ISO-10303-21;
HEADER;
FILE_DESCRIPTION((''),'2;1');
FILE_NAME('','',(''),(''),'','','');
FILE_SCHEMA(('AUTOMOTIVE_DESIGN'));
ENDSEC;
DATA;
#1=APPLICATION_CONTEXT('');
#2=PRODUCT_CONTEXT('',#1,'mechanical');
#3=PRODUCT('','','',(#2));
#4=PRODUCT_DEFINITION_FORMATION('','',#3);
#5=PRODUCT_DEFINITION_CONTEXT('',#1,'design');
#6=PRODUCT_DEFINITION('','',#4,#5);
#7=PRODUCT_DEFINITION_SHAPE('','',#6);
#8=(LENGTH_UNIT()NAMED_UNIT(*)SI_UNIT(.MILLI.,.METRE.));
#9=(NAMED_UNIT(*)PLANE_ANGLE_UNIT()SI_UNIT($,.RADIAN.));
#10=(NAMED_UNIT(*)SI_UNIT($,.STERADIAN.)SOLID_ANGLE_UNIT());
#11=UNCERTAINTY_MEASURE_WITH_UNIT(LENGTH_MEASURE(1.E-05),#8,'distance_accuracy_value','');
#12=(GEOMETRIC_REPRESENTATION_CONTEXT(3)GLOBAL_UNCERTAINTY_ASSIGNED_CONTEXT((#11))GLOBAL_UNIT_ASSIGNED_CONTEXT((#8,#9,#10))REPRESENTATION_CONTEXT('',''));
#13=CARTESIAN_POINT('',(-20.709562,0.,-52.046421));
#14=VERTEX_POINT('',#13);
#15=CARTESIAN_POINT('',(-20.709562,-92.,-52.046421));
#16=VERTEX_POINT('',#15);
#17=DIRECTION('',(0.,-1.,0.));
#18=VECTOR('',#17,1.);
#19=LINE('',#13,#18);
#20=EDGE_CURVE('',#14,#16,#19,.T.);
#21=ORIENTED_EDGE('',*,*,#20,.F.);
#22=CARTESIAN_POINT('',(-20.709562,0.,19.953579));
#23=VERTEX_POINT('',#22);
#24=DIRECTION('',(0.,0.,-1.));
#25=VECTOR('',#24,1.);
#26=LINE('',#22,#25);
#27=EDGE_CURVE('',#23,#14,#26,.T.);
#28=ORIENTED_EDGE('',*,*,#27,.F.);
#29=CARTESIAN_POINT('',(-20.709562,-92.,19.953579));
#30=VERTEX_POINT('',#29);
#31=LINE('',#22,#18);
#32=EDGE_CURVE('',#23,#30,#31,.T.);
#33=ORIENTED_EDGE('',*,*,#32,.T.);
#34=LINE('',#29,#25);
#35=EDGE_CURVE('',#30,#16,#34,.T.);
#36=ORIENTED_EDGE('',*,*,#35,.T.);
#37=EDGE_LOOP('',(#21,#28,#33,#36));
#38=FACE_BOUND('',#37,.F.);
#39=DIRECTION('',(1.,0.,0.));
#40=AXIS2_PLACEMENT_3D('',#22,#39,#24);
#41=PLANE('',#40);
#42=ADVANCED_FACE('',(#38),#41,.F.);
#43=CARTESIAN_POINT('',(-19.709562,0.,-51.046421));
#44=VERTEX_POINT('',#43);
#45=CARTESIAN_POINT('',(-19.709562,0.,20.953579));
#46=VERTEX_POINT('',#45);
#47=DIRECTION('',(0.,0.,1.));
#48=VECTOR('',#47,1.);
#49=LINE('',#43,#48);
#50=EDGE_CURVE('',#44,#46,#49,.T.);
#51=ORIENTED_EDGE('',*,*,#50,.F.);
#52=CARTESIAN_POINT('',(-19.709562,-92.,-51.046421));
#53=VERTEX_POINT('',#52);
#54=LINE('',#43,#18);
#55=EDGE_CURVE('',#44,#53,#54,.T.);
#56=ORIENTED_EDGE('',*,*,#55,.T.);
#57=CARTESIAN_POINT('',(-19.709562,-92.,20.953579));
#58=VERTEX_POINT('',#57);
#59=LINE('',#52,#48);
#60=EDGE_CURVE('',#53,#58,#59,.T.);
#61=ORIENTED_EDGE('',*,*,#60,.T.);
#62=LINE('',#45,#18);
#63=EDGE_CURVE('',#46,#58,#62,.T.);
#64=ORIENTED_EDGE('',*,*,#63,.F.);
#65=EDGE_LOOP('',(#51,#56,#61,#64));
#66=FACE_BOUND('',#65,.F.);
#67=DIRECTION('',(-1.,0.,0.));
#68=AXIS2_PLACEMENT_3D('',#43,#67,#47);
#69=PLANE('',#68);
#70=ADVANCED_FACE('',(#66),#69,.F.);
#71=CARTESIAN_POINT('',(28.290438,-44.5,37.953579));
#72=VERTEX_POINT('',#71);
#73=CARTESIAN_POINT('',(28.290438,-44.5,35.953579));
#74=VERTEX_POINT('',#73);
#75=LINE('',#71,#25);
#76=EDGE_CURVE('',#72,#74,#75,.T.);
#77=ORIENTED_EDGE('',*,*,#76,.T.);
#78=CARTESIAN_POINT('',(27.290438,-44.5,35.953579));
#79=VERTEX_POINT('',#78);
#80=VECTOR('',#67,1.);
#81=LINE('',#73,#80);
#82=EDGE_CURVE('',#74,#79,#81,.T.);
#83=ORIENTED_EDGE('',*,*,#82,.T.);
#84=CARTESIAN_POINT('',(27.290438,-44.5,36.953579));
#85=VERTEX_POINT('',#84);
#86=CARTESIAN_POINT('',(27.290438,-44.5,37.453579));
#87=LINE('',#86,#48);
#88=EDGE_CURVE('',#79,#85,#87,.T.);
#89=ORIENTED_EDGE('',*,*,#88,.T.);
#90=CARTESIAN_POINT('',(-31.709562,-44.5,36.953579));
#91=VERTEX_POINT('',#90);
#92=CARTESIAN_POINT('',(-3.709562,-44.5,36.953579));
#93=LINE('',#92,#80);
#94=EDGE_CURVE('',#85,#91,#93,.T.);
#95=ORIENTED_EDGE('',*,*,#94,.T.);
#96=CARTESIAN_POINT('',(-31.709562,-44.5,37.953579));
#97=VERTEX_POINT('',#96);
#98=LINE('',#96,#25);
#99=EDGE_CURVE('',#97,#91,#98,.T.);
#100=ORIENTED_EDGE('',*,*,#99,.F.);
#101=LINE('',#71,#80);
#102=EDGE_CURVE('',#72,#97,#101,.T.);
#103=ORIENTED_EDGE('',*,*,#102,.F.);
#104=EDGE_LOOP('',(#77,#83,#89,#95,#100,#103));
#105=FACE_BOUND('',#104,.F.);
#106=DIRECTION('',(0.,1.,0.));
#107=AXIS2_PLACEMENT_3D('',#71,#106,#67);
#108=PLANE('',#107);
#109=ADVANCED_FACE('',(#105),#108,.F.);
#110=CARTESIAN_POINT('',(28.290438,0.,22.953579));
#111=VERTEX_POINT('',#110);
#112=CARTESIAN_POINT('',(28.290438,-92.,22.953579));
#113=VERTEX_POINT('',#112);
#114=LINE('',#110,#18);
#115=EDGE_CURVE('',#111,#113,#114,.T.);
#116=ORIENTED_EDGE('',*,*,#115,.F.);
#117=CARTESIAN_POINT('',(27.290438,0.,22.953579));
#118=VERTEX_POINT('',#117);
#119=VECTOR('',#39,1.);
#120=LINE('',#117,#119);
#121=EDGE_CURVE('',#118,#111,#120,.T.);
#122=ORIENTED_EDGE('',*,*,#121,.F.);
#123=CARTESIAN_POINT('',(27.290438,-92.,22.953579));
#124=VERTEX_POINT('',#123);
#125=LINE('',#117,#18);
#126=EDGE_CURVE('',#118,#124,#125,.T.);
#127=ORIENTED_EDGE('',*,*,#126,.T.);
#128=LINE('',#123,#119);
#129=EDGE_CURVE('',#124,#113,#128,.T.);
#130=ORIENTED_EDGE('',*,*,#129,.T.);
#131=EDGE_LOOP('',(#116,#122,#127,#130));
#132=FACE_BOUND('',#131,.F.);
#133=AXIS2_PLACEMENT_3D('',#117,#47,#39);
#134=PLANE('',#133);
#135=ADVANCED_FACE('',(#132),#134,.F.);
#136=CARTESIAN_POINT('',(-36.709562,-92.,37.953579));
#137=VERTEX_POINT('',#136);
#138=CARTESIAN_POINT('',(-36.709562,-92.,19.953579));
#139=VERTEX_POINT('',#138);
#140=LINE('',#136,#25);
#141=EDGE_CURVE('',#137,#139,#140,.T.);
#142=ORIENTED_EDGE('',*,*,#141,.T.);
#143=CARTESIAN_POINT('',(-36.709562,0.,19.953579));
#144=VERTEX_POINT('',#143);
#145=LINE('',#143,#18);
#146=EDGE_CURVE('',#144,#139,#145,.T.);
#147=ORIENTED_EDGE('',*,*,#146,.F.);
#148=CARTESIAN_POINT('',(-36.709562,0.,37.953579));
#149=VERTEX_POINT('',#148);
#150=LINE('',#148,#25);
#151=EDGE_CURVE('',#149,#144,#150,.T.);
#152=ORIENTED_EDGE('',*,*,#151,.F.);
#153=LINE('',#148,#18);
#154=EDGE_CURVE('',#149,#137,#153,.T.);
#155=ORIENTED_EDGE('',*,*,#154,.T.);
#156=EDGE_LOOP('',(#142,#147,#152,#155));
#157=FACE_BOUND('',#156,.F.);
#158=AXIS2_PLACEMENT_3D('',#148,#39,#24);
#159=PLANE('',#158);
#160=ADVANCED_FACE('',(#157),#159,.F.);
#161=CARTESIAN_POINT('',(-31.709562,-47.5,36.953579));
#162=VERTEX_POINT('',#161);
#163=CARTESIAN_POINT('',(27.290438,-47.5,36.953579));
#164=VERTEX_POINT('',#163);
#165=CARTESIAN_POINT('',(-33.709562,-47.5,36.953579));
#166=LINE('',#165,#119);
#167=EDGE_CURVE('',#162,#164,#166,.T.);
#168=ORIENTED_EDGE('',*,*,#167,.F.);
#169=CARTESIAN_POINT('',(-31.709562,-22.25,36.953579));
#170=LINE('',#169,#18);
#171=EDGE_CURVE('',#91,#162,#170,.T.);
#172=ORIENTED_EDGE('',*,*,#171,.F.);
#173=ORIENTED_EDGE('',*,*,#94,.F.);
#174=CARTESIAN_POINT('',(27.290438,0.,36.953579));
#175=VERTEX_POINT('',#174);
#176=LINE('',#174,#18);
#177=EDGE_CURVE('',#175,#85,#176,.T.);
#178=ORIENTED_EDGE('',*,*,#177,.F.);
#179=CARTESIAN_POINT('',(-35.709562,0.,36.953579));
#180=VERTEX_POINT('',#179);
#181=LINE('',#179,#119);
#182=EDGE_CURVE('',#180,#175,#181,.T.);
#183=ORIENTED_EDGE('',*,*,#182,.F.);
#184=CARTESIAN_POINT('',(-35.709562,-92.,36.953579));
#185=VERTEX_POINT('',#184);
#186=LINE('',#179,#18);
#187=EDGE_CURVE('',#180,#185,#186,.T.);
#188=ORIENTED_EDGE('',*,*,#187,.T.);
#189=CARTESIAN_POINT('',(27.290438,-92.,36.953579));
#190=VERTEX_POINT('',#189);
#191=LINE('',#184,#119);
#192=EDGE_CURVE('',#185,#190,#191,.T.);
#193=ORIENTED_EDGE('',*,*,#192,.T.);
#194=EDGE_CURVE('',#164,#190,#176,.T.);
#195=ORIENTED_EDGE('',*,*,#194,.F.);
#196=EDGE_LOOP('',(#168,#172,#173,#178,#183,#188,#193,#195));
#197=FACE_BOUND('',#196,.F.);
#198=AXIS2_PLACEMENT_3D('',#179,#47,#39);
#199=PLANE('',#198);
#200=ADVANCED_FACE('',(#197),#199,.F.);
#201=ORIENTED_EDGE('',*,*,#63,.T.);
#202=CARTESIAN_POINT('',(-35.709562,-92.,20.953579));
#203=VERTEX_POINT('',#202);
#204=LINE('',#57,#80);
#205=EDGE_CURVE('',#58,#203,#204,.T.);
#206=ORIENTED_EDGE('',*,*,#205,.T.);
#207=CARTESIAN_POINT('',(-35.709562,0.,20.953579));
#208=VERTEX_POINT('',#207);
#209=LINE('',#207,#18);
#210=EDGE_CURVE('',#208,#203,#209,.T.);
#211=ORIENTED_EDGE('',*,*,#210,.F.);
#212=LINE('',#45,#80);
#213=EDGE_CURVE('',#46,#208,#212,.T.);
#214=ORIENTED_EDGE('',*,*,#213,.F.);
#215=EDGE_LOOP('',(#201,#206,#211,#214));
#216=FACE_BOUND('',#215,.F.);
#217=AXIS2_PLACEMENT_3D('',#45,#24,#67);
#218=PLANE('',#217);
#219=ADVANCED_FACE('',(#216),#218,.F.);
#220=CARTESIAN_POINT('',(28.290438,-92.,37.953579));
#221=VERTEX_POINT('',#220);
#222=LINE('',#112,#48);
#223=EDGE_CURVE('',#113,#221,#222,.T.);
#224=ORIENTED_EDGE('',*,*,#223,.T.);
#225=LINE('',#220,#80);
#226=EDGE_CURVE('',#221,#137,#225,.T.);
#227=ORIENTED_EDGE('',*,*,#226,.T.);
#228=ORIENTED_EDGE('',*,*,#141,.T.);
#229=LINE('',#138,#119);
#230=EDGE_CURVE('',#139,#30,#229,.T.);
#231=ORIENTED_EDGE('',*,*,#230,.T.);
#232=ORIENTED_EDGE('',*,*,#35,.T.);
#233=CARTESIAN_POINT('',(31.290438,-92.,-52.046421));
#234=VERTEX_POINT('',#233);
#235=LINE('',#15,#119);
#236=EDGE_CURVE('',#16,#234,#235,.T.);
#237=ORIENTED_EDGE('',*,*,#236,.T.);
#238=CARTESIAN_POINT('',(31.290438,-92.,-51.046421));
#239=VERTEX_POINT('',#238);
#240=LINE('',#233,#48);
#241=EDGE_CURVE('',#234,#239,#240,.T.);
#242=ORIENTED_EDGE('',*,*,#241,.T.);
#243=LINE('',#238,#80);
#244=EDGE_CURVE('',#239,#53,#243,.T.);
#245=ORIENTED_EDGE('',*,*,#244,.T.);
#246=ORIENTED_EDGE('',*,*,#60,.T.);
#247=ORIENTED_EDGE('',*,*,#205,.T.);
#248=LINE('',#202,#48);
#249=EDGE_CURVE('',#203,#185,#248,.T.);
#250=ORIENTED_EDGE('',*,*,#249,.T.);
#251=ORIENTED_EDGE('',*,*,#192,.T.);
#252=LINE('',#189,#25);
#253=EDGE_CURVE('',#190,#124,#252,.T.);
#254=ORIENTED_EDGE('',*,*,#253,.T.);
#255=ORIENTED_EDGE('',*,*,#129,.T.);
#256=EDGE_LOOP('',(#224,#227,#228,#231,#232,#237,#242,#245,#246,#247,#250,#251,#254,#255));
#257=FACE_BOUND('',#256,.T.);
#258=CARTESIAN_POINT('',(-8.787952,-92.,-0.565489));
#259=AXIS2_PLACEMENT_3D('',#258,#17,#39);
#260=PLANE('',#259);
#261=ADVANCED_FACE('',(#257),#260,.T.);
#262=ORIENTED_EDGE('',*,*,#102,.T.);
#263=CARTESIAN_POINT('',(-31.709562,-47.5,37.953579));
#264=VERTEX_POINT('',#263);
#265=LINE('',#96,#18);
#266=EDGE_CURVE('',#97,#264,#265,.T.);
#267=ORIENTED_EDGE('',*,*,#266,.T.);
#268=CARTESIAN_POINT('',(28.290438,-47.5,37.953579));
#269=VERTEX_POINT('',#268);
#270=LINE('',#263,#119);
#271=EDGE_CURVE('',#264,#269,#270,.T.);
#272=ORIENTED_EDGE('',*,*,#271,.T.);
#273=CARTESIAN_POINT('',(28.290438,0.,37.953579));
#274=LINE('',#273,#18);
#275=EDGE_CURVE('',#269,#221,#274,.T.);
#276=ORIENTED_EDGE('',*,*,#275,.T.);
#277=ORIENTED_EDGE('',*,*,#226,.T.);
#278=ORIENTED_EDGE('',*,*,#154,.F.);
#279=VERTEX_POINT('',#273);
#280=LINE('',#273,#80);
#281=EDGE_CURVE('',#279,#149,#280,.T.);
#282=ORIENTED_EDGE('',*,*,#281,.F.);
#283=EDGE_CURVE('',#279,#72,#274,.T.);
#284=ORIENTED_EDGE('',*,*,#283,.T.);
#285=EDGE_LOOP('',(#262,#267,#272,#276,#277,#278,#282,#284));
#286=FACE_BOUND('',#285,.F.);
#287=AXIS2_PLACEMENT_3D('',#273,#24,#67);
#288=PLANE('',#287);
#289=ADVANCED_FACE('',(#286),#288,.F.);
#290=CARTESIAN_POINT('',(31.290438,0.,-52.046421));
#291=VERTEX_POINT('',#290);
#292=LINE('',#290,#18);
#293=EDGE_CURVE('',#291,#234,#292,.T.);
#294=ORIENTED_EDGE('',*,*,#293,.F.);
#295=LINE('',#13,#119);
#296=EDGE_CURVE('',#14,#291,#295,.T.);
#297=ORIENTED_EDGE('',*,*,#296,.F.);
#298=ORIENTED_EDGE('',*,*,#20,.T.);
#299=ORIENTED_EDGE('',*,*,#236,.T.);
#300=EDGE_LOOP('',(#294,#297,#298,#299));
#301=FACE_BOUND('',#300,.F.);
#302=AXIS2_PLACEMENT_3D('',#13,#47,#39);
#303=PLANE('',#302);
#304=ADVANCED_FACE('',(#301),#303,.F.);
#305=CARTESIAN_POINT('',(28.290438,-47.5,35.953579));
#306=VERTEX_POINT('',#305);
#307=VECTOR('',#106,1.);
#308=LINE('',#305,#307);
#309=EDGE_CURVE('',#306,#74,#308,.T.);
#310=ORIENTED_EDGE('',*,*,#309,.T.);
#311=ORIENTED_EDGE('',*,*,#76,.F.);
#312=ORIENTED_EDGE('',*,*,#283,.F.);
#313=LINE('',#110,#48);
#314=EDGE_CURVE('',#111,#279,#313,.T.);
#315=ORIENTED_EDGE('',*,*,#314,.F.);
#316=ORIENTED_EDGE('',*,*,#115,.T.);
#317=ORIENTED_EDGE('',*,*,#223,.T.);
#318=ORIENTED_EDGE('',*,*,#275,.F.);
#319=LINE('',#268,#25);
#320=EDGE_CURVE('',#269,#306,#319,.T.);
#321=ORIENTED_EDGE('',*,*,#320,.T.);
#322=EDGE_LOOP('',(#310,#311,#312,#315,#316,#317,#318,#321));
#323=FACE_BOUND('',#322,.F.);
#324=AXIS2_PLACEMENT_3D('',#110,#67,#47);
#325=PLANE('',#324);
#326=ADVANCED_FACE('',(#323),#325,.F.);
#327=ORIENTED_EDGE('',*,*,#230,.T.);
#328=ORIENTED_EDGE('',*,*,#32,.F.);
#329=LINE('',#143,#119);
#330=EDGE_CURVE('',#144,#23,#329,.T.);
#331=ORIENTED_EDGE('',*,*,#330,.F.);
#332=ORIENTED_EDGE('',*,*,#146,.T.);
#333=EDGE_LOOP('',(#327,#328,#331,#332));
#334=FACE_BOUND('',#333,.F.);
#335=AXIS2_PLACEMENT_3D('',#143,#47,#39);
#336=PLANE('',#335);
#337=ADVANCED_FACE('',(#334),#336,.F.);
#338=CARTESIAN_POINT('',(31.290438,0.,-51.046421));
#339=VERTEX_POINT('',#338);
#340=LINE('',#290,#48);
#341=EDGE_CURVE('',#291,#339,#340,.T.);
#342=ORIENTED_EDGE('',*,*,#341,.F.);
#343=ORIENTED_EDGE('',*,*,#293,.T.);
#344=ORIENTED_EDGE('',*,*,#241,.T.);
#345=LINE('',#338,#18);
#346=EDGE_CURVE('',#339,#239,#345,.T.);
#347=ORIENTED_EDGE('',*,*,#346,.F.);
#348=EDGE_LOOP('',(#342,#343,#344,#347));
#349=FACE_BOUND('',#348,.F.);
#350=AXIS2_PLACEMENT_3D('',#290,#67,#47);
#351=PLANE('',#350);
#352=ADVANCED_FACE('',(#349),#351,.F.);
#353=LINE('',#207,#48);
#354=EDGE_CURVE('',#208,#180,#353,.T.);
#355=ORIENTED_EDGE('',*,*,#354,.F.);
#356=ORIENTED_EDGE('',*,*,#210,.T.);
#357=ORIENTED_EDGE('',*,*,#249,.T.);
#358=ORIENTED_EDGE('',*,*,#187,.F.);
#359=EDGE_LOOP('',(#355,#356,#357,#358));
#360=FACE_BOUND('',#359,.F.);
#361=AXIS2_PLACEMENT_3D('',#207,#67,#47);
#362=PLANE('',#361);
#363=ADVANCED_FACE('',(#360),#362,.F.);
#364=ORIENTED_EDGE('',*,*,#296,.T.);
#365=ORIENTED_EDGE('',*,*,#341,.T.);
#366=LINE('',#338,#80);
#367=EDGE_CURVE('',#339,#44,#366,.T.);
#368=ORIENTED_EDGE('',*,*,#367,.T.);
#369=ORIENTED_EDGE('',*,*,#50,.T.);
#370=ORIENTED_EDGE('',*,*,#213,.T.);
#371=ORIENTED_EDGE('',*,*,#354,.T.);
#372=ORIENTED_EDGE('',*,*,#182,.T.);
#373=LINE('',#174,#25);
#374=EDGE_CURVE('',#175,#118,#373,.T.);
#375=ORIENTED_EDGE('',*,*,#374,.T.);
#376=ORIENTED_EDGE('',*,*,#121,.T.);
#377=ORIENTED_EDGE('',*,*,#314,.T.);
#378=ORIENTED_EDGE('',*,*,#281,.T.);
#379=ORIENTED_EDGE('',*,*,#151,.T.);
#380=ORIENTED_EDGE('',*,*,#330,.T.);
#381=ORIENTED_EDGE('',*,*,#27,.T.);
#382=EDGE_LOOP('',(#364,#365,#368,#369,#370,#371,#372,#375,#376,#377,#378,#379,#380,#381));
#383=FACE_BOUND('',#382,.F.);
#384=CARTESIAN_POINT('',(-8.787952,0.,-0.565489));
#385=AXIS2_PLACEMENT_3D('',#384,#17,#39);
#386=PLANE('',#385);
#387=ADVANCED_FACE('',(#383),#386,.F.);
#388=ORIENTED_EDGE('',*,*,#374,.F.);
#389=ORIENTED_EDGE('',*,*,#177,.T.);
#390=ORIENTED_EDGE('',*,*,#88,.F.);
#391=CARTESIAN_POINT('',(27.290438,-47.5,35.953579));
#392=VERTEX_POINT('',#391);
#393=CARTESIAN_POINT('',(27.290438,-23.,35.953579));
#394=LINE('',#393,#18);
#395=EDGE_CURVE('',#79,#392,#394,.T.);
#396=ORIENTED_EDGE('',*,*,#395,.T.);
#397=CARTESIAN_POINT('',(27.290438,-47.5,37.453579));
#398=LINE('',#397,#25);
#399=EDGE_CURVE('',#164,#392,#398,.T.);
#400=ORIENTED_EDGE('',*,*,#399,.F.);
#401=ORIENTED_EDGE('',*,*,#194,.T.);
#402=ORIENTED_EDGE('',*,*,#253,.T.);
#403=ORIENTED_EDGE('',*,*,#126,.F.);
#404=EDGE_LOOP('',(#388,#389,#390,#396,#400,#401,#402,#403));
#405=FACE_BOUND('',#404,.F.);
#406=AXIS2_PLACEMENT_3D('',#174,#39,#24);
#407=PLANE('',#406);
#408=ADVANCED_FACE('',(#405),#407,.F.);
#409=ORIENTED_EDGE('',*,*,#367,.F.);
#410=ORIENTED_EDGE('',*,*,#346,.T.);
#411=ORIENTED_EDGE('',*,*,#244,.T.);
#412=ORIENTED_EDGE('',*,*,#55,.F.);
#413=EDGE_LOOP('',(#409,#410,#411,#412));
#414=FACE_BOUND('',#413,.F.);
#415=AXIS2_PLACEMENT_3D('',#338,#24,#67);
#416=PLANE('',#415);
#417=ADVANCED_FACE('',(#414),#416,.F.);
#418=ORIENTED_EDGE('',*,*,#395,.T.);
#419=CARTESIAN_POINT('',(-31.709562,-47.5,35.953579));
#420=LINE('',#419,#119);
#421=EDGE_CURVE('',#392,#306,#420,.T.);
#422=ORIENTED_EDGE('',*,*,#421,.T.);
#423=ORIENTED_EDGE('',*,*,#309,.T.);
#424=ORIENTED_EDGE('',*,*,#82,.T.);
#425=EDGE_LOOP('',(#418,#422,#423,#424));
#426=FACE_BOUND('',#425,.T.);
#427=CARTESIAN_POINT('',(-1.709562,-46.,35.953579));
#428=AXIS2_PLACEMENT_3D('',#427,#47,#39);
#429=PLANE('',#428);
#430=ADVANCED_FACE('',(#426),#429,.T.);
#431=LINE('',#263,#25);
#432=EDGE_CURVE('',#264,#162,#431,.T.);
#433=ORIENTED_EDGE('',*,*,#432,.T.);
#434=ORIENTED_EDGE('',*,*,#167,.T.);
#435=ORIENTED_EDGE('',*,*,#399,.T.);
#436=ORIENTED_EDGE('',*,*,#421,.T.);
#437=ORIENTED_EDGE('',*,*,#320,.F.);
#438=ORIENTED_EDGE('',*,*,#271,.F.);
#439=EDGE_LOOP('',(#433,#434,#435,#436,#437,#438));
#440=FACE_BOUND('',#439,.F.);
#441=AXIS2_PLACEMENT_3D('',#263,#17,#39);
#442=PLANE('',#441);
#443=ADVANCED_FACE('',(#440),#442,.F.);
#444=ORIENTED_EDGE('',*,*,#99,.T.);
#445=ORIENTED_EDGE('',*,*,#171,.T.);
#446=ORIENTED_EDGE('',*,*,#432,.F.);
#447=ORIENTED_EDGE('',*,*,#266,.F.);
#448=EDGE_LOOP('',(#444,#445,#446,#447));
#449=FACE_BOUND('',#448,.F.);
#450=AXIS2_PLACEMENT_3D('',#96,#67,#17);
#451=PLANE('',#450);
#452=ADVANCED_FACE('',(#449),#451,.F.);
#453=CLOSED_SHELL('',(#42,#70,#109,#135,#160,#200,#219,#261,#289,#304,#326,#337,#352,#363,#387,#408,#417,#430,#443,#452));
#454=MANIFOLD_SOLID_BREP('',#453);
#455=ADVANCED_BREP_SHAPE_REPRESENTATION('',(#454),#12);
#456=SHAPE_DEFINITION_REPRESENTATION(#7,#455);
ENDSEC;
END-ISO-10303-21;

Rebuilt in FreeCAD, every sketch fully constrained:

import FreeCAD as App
import Part
import Sketcher
from FreeCAD import Vector
Q = App.Units.Quantity


def add_polygon(sketch, points):
    """Adds a closed chain of lines whose ends are joined by coincident constraints."""
    first, n = sketch.GeometryCount, len(points)
    for a, b in zip(points, points[1:] + points[:1]):
        sketch.addGeometry(Part.LineSegment(App.Vector(*a, 0), App.Vector(*b, 0)), False)
    for i in range(n):
        sketch.addConstraint(Sketcher.Constraint("Coincident", first + i, 2, first + (i + 1) % n, 1))

doc = App.newDocument("Part")
params = doc.addObject("Spreadsheet::Sheet", "Params")
for row, (alias, value) in enumerate([
    ("sketch1_width", "65 mm"),
    ("sketch1_width2", "16 mm"),
    ("sketch1_width3", "52 mm"),
    ("sketch1_width4", "51 mm"),
    ("sketch1_width5", "63 mm"),
    ("pad1_length", "92 mm"),
    ("sketch2_width", "60 mm"),
    ("sketch2_height", "3 mm"),
    ("pocket1_length", "2 mm"),
], start=1):
    params.set(f"A{row}", alias)
    params.set(f"B{row}", "=" + value)
    params.setAlias(f"B{row}", alias)

body = doc.addObject("PartDesign::Body", "Body")

# Sketch on XZ plane
sketch1 = body.newObject("Sketcher::SketchObject", "Sketch")
sketch1.AttachmentSupport = (doc.getObject("XZ_Plane"), [""])
sketch1.MapMode = "FlatFace"
add_polygon(sketch1, [(28.3, 38), (-36.7, 38), (-36.7, 20), (-20.7, 20), (-20.7, -52), (31.3, -52), (31.3, -51), (-19.7, -51), (-19.7, 21), (-35.7, 21), (-35.7, 37), (27.3, 37), (27.3, 23), (28.3, 23)])  # lines 0-13
sketch1.addConstraint(Sketcher.Constraint("Horizontal", 0))
sketch1.addConstraint(Sketcher.Constraint("Vertical", 1))
sketch1.addConstraint(Sketcher.Constraint("Horizontal", 2))
sketch1.addConstraint(Sketcher.Constraint("Vertical", 3))
sketch1.addConstraint(Sketcher.Constraint("Horizontal", 4))
sketch1.addConstraint(Sketcher.Constraint("Vertical", 5))
sketch1.addConstraint(Sketcher.Constraint("Horizontal", 6))
sketch1.addConstraint(Sketcher.Constraint("Vertical", 7))
sketch1.addConstraint(Sketcher.Constraint("Horizontal", 8))
sketch1.addConstraint(Sketcher.Constraint("Vertical", 9))
sketch1.addConstraint(Sketcher.Constraint("Horizontal", 10))
sketch1.addConstraint(Sketcher.Constraint("Vertical", 11))
sketch1.addConstraint(Sketcher.Constraint("Horizontal", 12))
sketch1.addConstraint(Sketcher.Constraint("Vertical", 13))
sketch1.addConstraint(Sketcher.Constraint("Equal", 2, 8))
sketch1.addConstraint(Sketcher.Constraint("Equal", 12, 5))
sketch1.addConstraint(Sketcher.Constraint("Equal", 3, 7))
sketch1.addConstraint(Sketcher.Constraint("Equal", 8, 9))
sketch1.addConstraint(Sketcher.Constraint("DistanceX", 0, 2, 0, 1, Q("65 mm")))
sketch1.addConstraint(Sketcher.Constraint("DistanceX", 2, 1, 2, 2, Q("16 mm")))
sketch1.addConstraint(Sketcher.Constraint("DistanceX", 4, 1, 4, 2, Q("52 mm")))
sketch1.addConstraint(Sketcher.Constraint("DistanceX", 6, 2, 6, 1, Q("51 mm")))
sketch1.addConstraint(Sketcher.Constraint("DistanceX", 10, 1, 10, 2, Q("63 mm")))
sketch1.addConstraint(Sketcher.Constraint("DistanceY", 1, 2, 1, 1, Q("18 mm")))
sketch1.addConstraint(Sketcher.Constraint("DistanceY", 3, 2, 3, 1, Q("72 mm")))
sketch1.addConstraint(Sketcher.Constraint("DistanceY", 11, 2, 11, 1, Q("14 mm")))
sketch1.addConstraint(Sketcher.Constraint("DistanceX", 0, 2, -1, 1, Q("36.709562 mm")))
sketch1.addConstraint(Sketcher.Constraint("DistanceY", -1, 1, 0, 2, Q("37.953579 mm")))
sketch1.setExpression("Constraints[32]", "Params.sketch1_width")
sketch1.setExpression("Constraints[33]", "Params.sketch1_width2")
sketch1.setExpression("Constraints[34]", "Params.sketch1_width3")
sketch1.setExpression("Constraints[35]", "Params.sketch1_width4")
sketch1.setExpression("Constraints[36]", "Params.sketch1_width5")
pad1 = body.newObject("PartDesign::Pad", "Pad")
pad1.Profile = sketch1
pad1.setExpression("Length", "Params.pad1_length")

# Sketch on XY plane
sketch2 = body.newObject("Sketcher::SketchObject", "Sketch001")
sketch2.AttachmentSupport = (doc.getObject("XY_Plane"), [""])
sketch2.MapMode = "FlatFace"
sketch2.AttachmentOffset = App.Placement(Vector(0, 0, 37.953579), App.Rotation())
add_polygon(sketch2, [(-31.7, -47.5), (28.3, -47.5), (28.3, -44.5), (-31.7, -44.5)])  # lines 0-3
sketch2.addConstraint(Sketcher.Constraint("Horizontal", 0))
sketch2.addConstraint(Sketcher.Constraint("Vertical", 1))
sketch2.addConstraint(Sketcher.Constraint("Horizontal", 2))
sketch2.addConstraint(Sketcher.Constraint("Vertical", 3))
sketch2.addConstraint(Sketcher.Constraint("DistanceX", 0, 1, 0, 2, Q("60 mm")))
sketch2.addConstraint(Sketcher.Constraint("DistanceY", 1, 1, 1, 2, Q("3 mm")))
sketch2.addConstraint(Sketcher.Constraint("DistanceY", 0, 2, -1, 1, Q("47.5 mm")))
sketch2.addConstraint(Sketcher.Constraint("DistanceX", -1, 1, 0, 2, Q("28.290438 mm")))
sketch2.setExpression("Constraints[8]", "Params.sketch2_width")
sketch2.setExpression("Constraints[9]", "Params.sketch2_height")
pocket1 = body.newObject("PartDesign::Pocket", "Pocket")
pocket1.Profile = sketch2
pocket1.setExpression("Length", "Params.pocket1_length")

doc.recompute()
